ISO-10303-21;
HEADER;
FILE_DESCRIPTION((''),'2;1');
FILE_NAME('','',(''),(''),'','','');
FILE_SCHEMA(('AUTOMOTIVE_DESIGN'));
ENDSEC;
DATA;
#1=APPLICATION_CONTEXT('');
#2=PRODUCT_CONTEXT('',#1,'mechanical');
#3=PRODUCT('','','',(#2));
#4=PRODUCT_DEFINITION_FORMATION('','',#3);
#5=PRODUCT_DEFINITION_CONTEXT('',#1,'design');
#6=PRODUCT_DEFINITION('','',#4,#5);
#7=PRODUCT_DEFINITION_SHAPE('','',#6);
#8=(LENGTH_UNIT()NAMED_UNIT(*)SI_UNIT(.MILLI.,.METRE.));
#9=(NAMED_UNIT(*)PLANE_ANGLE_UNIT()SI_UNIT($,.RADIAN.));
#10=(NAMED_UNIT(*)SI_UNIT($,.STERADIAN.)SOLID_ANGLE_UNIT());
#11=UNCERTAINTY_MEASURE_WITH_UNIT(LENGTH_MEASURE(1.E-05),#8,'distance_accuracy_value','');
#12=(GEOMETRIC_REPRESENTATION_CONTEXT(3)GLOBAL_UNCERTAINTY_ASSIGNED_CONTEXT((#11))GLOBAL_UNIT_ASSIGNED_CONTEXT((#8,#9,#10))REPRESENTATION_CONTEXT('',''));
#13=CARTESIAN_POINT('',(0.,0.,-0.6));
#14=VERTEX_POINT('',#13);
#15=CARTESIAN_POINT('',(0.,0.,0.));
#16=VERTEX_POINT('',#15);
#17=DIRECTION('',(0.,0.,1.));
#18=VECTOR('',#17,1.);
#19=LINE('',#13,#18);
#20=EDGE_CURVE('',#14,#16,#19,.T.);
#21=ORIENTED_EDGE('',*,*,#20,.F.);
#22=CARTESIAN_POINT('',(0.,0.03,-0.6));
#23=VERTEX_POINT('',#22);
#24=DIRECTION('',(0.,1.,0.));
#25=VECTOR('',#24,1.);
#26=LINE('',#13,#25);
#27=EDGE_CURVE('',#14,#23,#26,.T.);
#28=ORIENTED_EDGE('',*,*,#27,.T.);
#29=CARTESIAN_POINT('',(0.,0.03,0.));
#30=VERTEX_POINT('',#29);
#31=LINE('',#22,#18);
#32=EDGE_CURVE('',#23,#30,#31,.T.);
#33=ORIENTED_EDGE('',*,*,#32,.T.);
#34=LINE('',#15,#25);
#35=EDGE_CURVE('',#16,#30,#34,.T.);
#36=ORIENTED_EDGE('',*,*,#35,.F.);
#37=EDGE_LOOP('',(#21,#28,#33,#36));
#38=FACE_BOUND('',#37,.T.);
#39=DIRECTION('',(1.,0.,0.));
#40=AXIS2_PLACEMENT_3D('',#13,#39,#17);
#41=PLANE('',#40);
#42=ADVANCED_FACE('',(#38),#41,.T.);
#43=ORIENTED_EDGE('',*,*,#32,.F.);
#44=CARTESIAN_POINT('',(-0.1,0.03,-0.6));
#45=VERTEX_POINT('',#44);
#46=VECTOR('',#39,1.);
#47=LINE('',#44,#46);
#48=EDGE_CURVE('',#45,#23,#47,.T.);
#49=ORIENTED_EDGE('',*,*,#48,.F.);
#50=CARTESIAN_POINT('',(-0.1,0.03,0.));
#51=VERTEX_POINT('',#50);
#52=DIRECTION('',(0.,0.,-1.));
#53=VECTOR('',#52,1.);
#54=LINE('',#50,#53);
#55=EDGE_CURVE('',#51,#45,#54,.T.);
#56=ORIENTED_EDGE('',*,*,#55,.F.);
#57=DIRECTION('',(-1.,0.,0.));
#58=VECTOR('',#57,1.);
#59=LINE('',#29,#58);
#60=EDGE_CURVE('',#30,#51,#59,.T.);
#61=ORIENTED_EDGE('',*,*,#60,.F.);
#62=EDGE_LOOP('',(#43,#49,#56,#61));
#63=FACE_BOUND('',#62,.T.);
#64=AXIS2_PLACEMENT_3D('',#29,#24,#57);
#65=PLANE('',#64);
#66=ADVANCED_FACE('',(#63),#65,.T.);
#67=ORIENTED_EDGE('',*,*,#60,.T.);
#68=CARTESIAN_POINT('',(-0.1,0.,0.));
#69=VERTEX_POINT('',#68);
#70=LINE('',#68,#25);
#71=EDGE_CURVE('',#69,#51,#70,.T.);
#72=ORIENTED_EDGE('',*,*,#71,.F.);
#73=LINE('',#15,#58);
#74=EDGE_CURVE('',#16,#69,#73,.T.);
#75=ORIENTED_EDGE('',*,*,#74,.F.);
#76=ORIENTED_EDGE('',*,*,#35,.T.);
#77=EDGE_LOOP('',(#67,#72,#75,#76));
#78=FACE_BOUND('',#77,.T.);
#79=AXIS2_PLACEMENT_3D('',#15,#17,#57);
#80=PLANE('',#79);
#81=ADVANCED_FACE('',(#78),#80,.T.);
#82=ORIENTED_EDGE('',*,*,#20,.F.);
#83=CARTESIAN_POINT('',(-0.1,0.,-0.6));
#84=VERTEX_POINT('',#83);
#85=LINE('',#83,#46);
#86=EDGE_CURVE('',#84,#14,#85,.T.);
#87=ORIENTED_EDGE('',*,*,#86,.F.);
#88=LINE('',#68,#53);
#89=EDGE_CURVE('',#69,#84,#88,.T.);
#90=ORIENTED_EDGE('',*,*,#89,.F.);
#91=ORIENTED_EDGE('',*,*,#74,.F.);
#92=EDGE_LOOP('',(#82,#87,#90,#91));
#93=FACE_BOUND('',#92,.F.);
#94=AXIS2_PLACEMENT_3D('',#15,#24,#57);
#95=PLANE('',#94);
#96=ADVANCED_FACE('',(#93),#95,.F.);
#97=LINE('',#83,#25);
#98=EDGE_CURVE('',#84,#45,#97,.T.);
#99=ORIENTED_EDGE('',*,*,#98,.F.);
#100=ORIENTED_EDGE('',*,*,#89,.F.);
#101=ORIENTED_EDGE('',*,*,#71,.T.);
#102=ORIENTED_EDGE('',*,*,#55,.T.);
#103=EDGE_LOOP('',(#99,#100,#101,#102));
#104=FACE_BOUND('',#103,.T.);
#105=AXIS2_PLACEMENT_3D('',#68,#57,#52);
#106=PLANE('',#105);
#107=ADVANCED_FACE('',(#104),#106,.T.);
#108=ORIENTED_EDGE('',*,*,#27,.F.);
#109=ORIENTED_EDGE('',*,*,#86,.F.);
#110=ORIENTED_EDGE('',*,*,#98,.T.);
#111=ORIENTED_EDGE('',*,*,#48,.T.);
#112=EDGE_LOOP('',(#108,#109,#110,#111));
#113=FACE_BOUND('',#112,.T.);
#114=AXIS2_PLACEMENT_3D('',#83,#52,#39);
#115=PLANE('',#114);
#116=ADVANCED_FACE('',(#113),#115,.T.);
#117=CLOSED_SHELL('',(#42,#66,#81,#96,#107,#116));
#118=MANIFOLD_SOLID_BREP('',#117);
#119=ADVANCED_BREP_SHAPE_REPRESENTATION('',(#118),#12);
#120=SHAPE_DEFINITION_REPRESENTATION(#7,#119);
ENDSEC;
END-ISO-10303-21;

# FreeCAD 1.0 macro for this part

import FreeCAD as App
import Part
import Sketcher

V = App.Vector
Q = App.Units.Quantity


def add_polygon(sketch, points):
    """Adds a closed chain of lines whose ends are joined by coincident constraints."""
    first, n = sketch.GeometryCount, len(points)
    for a, b in zip(points, points[1:] + points[:1]):
        sketch.addGeometry(Part.LineSegment(App.Vector(*a, 0), App.Vector(*b, 0)), False)
    for i in range(n):
        sketch.addConstraint(Sketcher.Constraint("Coincident", first + i, 2, first + (i + 1) % n, 1))

doc = App.newDocument("Part")
body = doc.addObject("PartDesign::Body", "Body")

sketch1 = doc.addObject("Sketcher::SketchObject", "Sketch")
body.addObject(sketch1)
sketch1.AttachmentSupport = (doc.XZ_Plane, [""])
sketch1.MapMode = "FlatFace"
add_polygon(sketch1, [(-0.1, 0), (0, 0), (0, -0.6), (-0.1, -0.6)])
sketch1.addConstraint([
    Sketcher.Constraint("Horizontal", 0),
    Sketcher.Constraint("Vertical", 1),
    Sketcher.Constraint("Horizontal", 2),
    Sketcher.Constraint("Vertical", 3),
    Sketcher.Constraint("Coincident", 0, 2, -1, 1),
    Sketcher.Constraint("DistanceX", 0, 1, 0, 2, Q("0.1 mm")),
    Sketcher.Constraint("DistanceY", 1, 2, 1, 1, Q("0.6 mm")),
])
pad1 = doc.addObject("PartDesign::Pad", "Pad")
body.addObject(pad1)
pad1.Profile = sketch1
pad1.Length = 0.03
pad1.Reversed = True

doc.recompute()
